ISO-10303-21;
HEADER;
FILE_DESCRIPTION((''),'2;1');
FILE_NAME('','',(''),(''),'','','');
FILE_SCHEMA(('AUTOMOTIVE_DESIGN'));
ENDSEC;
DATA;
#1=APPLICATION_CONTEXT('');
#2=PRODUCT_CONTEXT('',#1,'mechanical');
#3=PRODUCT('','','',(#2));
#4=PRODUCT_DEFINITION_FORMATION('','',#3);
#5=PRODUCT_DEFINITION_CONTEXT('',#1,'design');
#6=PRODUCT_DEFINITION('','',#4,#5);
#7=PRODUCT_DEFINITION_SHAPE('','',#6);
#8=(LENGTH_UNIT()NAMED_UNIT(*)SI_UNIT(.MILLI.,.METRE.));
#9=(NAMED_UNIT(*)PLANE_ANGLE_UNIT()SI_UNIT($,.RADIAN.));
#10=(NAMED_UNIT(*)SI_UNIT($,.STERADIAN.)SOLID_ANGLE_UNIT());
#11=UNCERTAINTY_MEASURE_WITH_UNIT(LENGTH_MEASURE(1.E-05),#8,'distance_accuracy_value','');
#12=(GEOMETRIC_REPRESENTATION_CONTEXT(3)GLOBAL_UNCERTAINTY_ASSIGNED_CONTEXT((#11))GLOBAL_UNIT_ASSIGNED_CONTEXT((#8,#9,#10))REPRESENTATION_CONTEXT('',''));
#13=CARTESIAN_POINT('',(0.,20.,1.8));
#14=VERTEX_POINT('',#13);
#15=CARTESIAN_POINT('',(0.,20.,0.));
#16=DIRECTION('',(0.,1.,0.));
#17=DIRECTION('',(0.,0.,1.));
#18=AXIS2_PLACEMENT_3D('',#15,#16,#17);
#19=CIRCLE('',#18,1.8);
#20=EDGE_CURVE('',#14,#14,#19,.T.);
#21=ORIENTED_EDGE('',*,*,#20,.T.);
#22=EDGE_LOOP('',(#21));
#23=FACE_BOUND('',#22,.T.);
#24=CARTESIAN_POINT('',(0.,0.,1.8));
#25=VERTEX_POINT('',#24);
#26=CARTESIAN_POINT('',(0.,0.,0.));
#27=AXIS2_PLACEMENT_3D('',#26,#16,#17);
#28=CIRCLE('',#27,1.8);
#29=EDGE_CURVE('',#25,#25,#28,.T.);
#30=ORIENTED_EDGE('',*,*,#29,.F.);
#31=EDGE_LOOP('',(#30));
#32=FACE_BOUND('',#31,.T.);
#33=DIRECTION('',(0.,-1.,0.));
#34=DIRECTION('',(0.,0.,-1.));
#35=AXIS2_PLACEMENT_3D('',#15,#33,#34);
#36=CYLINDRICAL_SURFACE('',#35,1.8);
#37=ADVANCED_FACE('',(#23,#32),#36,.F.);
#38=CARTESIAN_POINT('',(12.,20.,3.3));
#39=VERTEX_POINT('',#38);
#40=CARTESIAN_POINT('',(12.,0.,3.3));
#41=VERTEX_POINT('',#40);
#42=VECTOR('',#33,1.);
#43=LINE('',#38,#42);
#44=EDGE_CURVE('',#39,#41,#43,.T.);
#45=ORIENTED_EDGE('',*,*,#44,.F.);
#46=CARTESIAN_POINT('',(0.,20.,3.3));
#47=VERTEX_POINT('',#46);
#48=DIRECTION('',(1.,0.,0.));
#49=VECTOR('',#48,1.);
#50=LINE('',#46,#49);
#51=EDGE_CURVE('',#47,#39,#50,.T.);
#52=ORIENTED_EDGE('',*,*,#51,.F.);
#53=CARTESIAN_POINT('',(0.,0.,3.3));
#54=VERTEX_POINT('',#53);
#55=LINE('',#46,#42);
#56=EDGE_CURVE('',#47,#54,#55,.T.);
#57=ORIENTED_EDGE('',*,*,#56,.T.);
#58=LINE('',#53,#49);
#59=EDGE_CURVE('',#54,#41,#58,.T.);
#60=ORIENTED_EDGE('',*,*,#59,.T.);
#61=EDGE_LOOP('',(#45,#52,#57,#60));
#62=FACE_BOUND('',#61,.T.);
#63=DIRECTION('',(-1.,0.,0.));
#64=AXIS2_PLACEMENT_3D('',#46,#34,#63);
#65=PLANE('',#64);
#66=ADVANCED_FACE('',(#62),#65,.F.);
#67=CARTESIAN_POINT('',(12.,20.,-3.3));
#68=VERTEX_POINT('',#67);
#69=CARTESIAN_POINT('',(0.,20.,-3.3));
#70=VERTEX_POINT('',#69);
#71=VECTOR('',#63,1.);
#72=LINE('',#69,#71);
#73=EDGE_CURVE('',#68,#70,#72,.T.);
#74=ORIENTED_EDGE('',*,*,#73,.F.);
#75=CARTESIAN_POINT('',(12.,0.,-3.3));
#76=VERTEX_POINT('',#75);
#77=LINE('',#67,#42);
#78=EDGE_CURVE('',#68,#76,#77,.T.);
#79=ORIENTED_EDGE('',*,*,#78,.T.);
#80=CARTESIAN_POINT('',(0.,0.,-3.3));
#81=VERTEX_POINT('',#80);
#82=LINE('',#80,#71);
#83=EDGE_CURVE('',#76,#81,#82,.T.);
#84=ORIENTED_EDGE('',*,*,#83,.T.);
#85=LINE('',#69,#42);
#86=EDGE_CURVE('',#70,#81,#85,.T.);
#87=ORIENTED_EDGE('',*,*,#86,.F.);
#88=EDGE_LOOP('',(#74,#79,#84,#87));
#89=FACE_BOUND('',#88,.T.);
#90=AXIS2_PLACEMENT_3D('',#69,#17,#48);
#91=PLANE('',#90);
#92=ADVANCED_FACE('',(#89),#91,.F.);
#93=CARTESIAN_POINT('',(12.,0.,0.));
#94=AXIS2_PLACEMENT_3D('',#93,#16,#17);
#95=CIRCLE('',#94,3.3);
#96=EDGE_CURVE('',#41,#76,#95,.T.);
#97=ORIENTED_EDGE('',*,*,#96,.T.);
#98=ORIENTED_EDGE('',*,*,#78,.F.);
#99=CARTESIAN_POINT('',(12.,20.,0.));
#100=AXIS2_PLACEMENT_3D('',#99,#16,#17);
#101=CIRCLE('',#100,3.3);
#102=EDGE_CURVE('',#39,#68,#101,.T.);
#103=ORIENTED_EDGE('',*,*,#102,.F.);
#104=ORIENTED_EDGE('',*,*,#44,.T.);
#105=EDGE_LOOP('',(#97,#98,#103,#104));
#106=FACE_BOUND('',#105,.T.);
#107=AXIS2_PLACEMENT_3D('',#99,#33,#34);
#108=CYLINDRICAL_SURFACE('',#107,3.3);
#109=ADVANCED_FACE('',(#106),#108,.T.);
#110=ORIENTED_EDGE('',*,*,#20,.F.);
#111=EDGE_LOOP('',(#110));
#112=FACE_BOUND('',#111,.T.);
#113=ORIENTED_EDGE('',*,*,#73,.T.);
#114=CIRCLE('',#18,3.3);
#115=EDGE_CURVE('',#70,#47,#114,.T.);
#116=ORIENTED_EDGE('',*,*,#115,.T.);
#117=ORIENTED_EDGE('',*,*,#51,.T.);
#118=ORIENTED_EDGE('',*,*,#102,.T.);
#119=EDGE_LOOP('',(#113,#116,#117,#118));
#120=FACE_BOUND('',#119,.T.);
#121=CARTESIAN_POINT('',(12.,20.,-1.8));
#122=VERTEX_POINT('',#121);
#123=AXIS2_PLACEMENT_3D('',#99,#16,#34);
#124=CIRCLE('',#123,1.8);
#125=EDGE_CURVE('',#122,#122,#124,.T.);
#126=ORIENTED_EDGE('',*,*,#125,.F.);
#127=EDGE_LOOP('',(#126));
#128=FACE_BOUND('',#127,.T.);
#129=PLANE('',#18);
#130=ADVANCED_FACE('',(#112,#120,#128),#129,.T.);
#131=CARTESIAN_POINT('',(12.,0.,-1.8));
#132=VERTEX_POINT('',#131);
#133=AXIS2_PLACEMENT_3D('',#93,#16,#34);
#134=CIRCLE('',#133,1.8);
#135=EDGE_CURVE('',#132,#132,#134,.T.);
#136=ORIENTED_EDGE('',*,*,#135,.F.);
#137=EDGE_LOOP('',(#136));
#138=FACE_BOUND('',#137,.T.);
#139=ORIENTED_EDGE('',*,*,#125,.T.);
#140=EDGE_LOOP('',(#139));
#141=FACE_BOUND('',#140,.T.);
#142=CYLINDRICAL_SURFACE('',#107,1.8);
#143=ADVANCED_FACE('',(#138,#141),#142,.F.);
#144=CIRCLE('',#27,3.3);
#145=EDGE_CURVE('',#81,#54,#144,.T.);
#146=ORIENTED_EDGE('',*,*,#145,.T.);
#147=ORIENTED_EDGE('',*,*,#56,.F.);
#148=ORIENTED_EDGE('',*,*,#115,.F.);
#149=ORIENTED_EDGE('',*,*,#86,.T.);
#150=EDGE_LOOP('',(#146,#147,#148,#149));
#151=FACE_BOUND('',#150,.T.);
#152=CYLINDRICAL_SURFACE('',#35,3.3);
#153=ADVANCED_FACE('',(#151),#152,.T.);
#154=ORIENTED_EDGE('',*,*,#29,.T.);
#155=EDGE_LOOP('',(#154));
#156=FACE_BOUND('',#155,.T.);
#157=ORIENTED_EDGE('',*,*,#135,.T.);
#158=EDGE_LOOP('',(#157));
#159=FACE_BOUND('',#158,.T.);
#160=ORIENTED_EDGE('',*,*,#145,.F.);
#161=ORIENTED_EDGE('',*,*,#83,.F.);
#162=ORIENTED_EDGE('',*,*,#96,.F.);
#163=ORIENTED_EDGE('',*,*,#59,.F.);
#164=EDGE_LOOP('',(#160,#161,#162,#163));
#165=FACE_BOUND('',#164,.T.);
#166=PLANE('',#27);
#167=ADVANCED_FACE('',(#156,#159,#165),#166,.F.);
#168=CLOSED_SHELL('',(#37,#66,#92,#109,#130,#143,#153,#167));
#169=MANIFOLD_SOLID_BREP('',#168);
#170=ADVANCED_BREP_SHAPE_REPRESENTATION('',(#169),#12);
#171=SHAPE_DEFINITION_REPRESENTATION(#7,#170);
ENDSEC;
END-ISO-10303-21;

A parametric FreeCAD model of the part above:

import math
import FreeCAD as App
import Part
import Sketcher

doc = App.newDocument("Part")
params = doc.addObject("Spreadsheet::Sheet", "Params")
for row, (alias, value) in enumerate([
    ("sketch1_diameter", "3.6 mm"),
    ("sketch1_radius", "3.3 mm"),
    ("sketch1_width", "12 mm"),
    ("pad1_length", "20 mm"),
], start=1):
    params.set(f"A{row}", alias)
    params.set(f"B{row}", "=" + value)
    params.setAlias(f"B{row}", alias)

body = doc.addObject("PartDesign::Body", "Body")

# Sketch on XZ plane
sketch1 = body.newObject("Sketcher::SketchObject", "Sketch")
sketch1.AttachmentSupport = (doc.getObject("XZ_Plane"), [""])
sketch1.MapMode = "FlatFace"
sketch1.addGeometry([
    Part.LineSegment(App.Vector(12, -3.3, 0), App.Vector(0, -3.3, 0)),  # 0
    Part.ArcOfCircle(Part.Circle(App.Vector(0, 0, 0), App.Vector(0, 0, 1), 3.3), math.radians(90), math.radians(270)),  # 1
    Part.LineSegment(App.Vector(0, 3.3, 0), App.Vector(12, 3.3, 0)),  # 2
    Part.ArcOfCircle(Part.Circle(App.Vector(12, 0, 0), App.Vector(0, 0, 1), 3.3), math.radians(-90), math.radians(90)),  # 3
    Part.Circle(App.Vector(12, 0, 0), App.Vector(0, 0, 1), 1.8),  # 4
    Part.Circle(App.Vector(0, 0, 0), App.Vector(0, 0, 1), 1.8),  # 5
], False)
sketch1.addConstraint([
    Sketcher.Constraint("Tangent", 0, 2, 1, 2),
    Sketcher.Constraint("Tangent", 1, 1, 2, 1),
    Sketcher.Constraint("Tangent", 2, 2, 3, 2),
    Sketcher.Constraint("Tangent", 3, 1, 0, 1),
    Sketcher.Constraint("Horizontal", 0),
    Sketcher.Constraint("Horizontal", 2),
    Sketcher.Constraint("Coincident", 1, 3, -1, 1),
    Sketcher.Constraint("Coincident", 5, 3, -1, 1),
    Sketcher.Constraint("Coincident", 4, 3, 3, 3),
    Sketcher.Constraint("Equal", 4, 5),
    Sketcher.Constraint("Diameter", 4, 3.6),
    Sketcher.Constraint("Radius", 1, 3.3),
    Sketcher.Constraint("DistanceX", 0, 2, 0, 1, 12.0),
])
sketch1.setExpression("Constraints[10]", "Params.sketch1_diameter")
sketch1.setExpression("Constraints[11]", "Params.sketch1_radius")
sketch1.setExpression("Constraints[12]", "Params.sketch1_width")
pad1 = body.newObject("PartDesign::Pad", "Pad")
pad1.Profile = sketch1
pad1.setExpression("Length", "Params.pad1_length")
pad1.Reversed = True

doc.recompute()
